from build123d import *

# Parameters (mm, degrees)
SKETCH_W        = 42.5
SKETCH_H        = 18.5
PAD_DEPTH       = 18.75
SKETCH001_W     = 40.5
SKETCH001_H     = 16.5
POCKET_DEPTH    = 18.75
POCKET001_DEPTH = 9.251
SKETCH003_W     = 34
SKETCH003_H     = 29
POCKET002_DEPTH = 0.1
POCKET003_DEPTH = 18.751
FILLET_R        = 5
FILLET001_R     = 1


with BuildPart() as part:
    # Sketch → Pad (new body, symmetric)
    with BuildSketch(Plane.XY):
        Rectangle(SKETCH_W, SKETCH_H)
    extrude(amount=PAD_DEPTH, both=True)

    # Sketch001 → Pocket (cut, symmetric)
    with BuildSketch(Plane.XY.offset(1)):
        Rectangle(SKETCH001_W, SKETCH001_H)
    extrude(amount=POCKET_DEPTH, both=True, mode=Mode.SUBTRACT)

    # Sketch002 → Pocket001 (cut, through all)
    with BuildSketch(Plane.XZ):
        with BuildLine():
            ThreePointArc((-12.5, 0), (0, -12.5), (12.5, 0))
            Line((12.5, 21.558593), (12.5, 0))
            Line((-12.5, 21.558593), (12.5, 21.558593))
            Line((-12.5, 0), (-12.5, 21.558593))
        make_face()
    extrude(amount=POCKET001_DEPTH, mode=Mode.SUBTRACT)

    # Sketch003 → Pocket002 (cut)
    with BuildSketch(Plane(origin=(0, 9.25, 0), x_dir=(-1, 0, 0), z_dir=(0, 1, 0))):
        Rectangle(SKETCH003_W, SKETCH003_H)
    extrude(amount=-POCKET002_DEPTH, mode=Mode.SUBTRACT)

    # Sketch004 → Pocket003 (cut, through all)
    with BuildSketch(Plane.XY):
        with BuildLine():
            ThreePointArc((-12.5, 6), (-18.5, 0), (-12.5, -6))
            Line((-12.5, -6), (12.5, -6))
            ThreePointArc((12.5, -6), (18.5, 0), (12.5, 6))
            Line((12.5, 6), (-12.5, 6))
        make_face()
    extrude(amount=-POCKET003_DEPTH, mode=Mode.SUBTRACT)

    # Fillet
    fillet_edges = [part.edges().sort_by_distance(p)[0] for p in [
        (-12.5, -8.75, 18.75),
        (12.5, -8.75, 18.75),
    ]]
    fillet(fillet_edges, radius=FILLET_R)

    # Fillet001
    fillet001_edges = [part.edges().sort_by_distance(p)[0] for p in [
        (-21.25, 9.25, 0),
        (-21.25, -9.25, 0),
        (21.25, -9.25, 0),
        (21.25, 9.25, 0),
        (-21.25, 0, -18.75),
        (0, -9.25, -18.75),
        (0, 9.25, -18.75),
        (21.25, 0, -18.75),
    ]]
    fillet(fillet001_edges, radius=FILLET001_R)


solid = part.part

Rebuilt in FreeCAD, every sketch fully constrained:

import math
import FreeCAD as App
import Part
import Sketcher

V = App.Vector


def edges_at(feature, points):
    """Names of the edges that pass closest to the given points."""
    edges = feature.Shape.Edges
    near = lambda p: min(range(len(edges)), key=lambda i: edges[i].distToShape(Part.Vertex(*p))[0])
    return sorted({f"Edge{near(p) + 1}" for p in points})

doc = App.newDocument("Part")
params = doc.addObject("Spreadsheet::Sheet", "Params")
for row, (alias, value) in enumerate([
    ("sketch1_width", "42.5 mm"),
    ("sketch1_height", "18.5 mm"),
    ("pad1_length", "37.5 mm"),
    ("sketch2_width", "40.5 mm"),
    ("sketch2_height", "16.5 mm"),
    ("pocket1_length", "37.5 mm"),
    ("sketch3_radius", "12.5 mm"),
    ("sketch4_width", "34 mm"),
    ("sketch4_height", "29 mm"),
    ("pocket3_length", "0.1 mm"),
    ("sketch5_radius", "6 mm"),
    ("sketch5_width", "25 mm"),
    ("fillet_radius", "5 mm"),
    ("fillet2_radius", "1 mm"),
], start=1):
    params.set(f"A{row}", alias)
    params.set(f"B{row}", "=" + value)
    params.setAlias(f"B{row}", alias)

body = doc.addObject("PartDesign::Body", "Body")

# Sketch on XY plane
sketch1 = body.newObject("Sketcher::SketchObject", "Sketch")
sketch1.AttachmentSupport = (doc.getObject("XY_Plane"), [""])
sketch1.MapMode = "FlatFace"
sketch1.addGeometry([
    Part.LineSegment(V(-21, 9, 0), V(-21, -9, 0)),
    Part.LineSegment(V(-21, -9, 0), V(21, -9, 0)),
    Part.LineSegment(V(21, -9, 0), V(21, 9, 0)),
    Part.LineSegment(V(21, 9, 0), V(-21, 9, 0)),
], False)
sketch1.addConstraint([
    Sketcher.Constraint("Coincident", 0, 2, 1, 1),
    Sketcher.Constraint("Coincident", 1, 2, 2, 1),
    Sketcher.Constraint("Coincident", 2, 2, 3, 1),
    Sketcher.Constraint("Coincident", 3, 2, 0, 1),
    Sketcher.Constraint("Vertical", 0),
    Sketcher.Constraint("Horizontal", 1),
    Sketcher.Constraint("Vertical", 2),
    Sketcher.Constraint("Horizontal", 3),
    Sketcher.Constraint("Symmetric", 0, 2, 2, 2, -1, 1),
    Sketcher.Constraint("DistanceX", 1, 1, 1, 2, 42.5),
    Sketcher.Constraint("DistanceY", 0, 2, 0, 1, 18.5),
])
sketch1.setExpression("Constraints[9]", "Params.sketch1_width")
sketch1.setExpression("Constraints[10]", "Params.sketch1_height")
pad1 = body.newObject("PartDesign::Pad", "Pad")
pad1.Profile = sketch1
pad1.setExpression("Length", "Params.pad1_length")
pad1.Midplane = True

# Sketch on XY plane
sketch2 = body.newObject("Sketcher::SketchObject", "Sketch001")
sketch2.AttachmentSupport = (doc.getObject("XY_Plane"), [""])
sketch2.MapMode = "FlatFace"
sketch2.AttachmentOffset = App.Placement(V(0, 0, 1), App.Rotation())
sketch2.addGeometry([
    Part.LineSegment(V(-20, 8, 0), V(-20, -8, 0)),
    Part.LineSegment(V(-20, -8, 0), V(20, -8, 0)),
    Part.LineSegment(V(20, -8, 0), V(20, 8, 0)),
    Part.LineSegment(V(20, 8, 0), V(-20, 8, 0)),
], False)
sketch2.addConstraint([
    Sketcher.Constraint("Coincident", 0, 2, 1, 1),
    Sketcher.Constraint("Coincident", 1, 2, 2, 1),
    Sketcher.Constraint("Coincident", 2, 2, 3, 1),
    Sketcher.Constraint("Coincident", 3, 2, 0, 1),
    Sketcher.Constraint("Vertical", 0),
    Sketcher.Constraint("Horizontal", 1),
    Sketcher.Constraint("Vertical", 2),
    Sketcher.Constraint("Horizontal", 3),
    Sketcher.Constraint("Symmetric", 0, 2, 2, 2, -1, 1),
    Sketcher.Constraint("DistanceX", 1, 1, 1, 2, 40.5),
    Sketcher.Constraint("DistanceY", 0, 2, 0, 1, 16.5),
])
sketch2.setExpression("Constraints[9]", "Params.sketch2_width")
sketch2.setExpression("Constraints[10]", "Params.sketch2_height")
pocket1 = body.newObject("PartDesign::Pocket", "Pocket")
pocket1.Profile = sketch2
pocket1.setExpression("Length", "Params.pocket1_length")
pocket1.Midplane = True

# Sketch on XZ plane
sketch3 = body.newObject("Sketcher::SketchObject", "Sketch002")
sketch3.AttachmentSupport = (doc.getObject("XZ_Plane"), [""])
sketch3.MapMode = "FlatFace"
sketch3.addGeometry([
    Part.ArcOfCircle(Part.Circle(V(0, 0, 0), V(0, 0, 1), 12), math.radians(180), math.radians(360)),
    Part.LineSegment(V(12, 0, 0), V(12, 22, 0)),
    Part.LineSegment(V(12, 22, 0), V(-12, 22, 0)),
    Part.LineSegment(V(-12, 22, 0), V(-12, 0, 0)),
], False)
sketch3.addConstraint([
    Sketcher.Constraint("Tangent", 0, 2, 1, 1),
    Sketcher.Constraint("Coincident", 1, 2, 2, 1),
    Sketcher.Constraint("Coincident", 2, 2, 3, 1),
    Sketcher.Constraint("Tangent", 3, 2, 0, 1),
    Sketcher.Constraint("Vertical", 1),
    Sketcher.Constraint("Horizontal", 2),
    Sketcher.Constraint("Vertical", 3),
    Sketcher.Constraint("Coincident", 0, 3, -1, 1),
    Sketcher.Constraint("Radius", 0, 12.5),
    Sketcher.Constraint("DistanceY", 1, 1, 1, 2, 21.558593),
])
sketch3.setExpression("Constraints[8]", "Params.sketch3_radius")
pocket2 = body.newObject("PartDesign::Pocket", "Pocket001")
pocket2.Profile = sketch3
pocket2.Type = "ThroughAll"
pocket2.Reversed = True

# Sketch on XZ plane
sketch4 = body.newObject("Sketcher::SketchObject", "Sketch003")
sketch4.AttachmentSupport = (doc.getObject("XZ_Plane"), [""])
sketch4.MapMode = "FlatFace"
sketch4.AttachmentOffset = App.Placement(V(0, 0, -9.25), App.Rotation())
sketch4.addGeometry([
    Part.LineSegment(V(17, 14, 0), V(17, -14, 0)),
    Part.LineSegment(V(17, -14, 0), V(-17, -14, 0)),
    Part.LineSegment(V(-17, -14, 0), V(-17, 14, 0)),
    Part.LineSegment(V(-17, 14, 0), V(17, 14, 0)),
], False)
sketch4.addConstraint([
    Sketcher.Constraint("Coincident", 0, 2, 1, 1),
    Sketcher.Constraint("Coincident", 1, 2, 2, 1),
    Sketcher.Constraint("Coincident", 2, 2, 3, 1),
    Sketcher.Constraint("Coincident", 3, 2, 0, 1),
    Sketcher.Constraint("Vertical", 0),
    Sketcher.Constraint("Horizontal", 1),
    Sketcher.Constraint("Vertical", 2),
    Sketcher.Constraint("Horizontal", 3),
    Sketcher.Constraint("Symmetric", 0, 2, 2, 2, -1, 1),
    Sketcher.Constraint("DistanceX", 1, 2, 1, 1, 34.0),
    Sketcher.Constraint("DistanceY", 0, 2, 0, 1, 29.0),
])
sketch4.setExpression("Constraints[9]", "Params.sketch4_width")
sketch4.setExpression("Constraints[10]", "Params.sketch4_height")
pocket3 = body.newObject("PartDesign::Pocket", "Pocket002")
pocket3.Profile = sketch4
pocket3.setExpression("Length", "Params.pocket3_length")
pocket3.Reversed = True

# Sketch on XY plane
sketch5 = body.newObject("Sketcher::SketchObject", "Sketch004")
sketch5.AttachmentSupport = (doc.getObject("XY_Plane"), [""])
sketch5.MapMode = "FlatFace"
sketch5.addGeometry([
    Part.ArcOfCircle(Part.Circle(V(-12, 0, 0), V(0, 0, 1), 6), math.radians(90), math.radians(270)),
    Part.LineSegment(V(-12, -6, 0), V(12, -6, 0)),
    Part.ArcOfCircle(Part.Circle(V(12, 0, 0), V(0, 0, 1), 6), math.radians(-90), math.radians(90)),
    Part.LineSegment(V(12, 6, 0), V(-12, 6, 0)),
], False)
sketch5.addConstraint([
    Sketcher.Constraint("Tangent", 0, 2, 1, 1),
    Sketcher.Constraint("Tangent", 1, 2, 2, 1),
    Sketcher.Constraint("Tangent", 2, 2, 3, 1),
    Sketcher.Constraint("Tangent", 3, 2, 0, 1),
    Sketcher.Constraint("Horizontal", 1),
    Sketcher.Constraint("Horizontal", 3),
    Sketcher.Constraint("Symmetric", 0, 3, 2, 3, -1, 1),
    Sketcher.Constraint("Radius", 0, 6.0),
    Sketcher.Constraint("DistanceX", 1, 1, 1, 2, 25.0),
])
sketch5.setExpression("Constraints[7]", "Params.sketch5_radius")
sketch5.setExpression("Constraints[8]", "Params.sketch5_width")
pocket4 = body.newObject("PartDesign::Pocket", "Pocket003")
pocket4.Profile = sketch5
pocket4.Type = "ThroughAll"
doc.recompute()

fillet = body.newObject("PartDesign::Fillet", "Fillet")
fillet.Base = (pocket4, edges_at(pocket4, [(-12.5, -8.75, 18.75), (12.5, -8.75, 18.75)]))
fillet.setExpression("Radius", "Params.fillet_radius")
doc.recompute()

fillet2 = body.newObject("PartDesign::Fillet", "Fillet001")
fillet2.Base = (fillet, edges_at(fillet, [
    (-21.25, 9.25, 0),
    (-21.25, -9.25, 0),
    (21.25, -9.25, 0),
    (21.25, 9.25, 0),
    (-21.25, 0, -18.75),
    (0, -9.25, -18.75),
    (0, 9.25, -18.75),
    (21.25, 0, -18.75),
]))
fillet2.setExpression("Radius", "Params.fillet2_radius")

doc.recompute()
